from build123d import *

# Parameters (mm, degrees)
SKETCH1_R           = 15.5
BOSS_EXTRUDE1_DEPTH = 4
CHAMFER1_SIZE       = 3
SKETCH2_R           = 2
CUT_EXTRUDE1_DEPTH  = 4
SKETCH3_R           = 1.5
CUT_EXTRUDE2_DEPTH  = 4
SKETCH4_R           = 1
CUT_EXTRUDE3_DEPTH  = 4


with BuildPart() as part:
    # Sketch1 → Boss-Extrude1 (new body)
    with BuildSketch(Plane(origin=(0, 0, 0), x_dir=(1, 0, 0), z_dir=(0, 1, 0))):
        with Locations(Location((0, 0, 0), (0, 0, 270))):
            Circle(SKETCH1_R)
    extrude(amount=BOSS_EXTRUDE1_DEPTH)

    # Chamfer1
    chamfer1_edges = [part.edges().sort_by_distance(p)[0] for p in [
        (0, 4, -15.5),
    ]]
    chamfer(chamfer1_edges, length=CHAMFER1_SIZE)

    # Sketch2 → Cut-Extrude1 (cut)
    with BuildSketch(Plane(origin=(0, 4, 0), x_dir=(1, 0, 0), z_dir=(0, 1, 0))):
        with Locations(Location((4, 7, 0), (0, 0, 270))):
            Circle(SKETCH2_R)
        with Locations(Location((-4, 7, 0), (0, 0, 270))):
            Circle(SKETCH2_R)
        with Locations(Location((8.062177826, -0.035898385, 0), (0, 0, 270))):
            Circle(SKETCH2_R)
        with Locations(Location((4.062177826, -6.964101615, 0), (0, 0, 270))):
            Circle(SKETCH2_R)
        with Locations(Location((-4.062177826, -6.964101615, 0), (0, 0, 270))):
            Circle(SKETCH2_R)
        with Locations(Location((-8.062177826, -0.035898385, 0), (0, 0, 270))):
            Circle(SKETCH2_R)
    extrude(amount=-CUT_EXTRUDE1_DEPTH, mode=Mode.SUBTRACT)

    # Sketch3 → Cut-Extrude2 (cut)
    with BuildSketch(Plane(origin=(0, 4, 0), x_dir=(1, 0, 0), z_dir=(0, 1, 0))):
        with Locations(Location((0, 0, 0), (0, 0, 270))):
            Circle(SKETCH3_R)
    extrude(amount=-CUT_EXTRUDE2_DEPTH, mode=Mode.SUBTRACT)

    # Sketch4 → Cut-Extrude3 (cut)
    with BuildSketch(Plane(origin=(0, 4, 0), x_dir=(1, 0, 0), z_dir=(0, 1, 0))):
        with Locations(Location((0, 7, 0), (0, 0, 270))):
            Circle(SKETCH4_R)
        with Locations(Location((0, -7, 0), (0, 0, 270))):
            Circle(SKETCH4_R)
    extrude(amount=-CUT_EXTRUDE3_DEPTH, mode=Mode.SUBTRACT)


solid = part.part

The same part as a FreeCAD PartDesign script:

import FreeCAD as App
import Part
import Sketcher

V = App.Vector


def edges_at(feature, points):
    """Names of the edges that pass closest to the given points."""
    edges = feature.Shape.Edges
    near = lambda p: min(range(len(edges)), key=lambda i: edges[i].distToShape(Part.Vertex(*p))[0])
    return sorted({f"Edge{near(p) + 1}" for p in points})

doc = App.newDocument("Part")
params = doc.addObject("Spreadsheet::Sheet", "Params")
for row, (alias, value) in enumerate([
    ("sketch1_diameter", "31 mm"),
    ("pad1_length", "4 mm"),
    ("chamfer_size", "3 mm"),
    ("sketch2_diameter", "4 mm"),
    ("pocket1_length", "4 mm"),
    ("sketch3_diameter", "3 mm"),
    ("pocket2_length", "4 mm"),
    ("sketch4_diameter", "2 mm"),
    ("pocket3_length", "4 mm"),
], start=1):
    params.set(f"A{row}", alias)
    params.set(f"B{row}", "=" + value)
    params.setAlias(f"B{row}", alias)

body = doc.addObject("PartDesign::Body", "Body")

sketch1 = body.newObject("Sketcher::SketchObject", "Sketch")
sketch1.AttachmentSupport = (doc.getObject("XZ_Plane"), [""])
sketch1.MapMode = "FlatFace"
sketch1.addGeometry(Part.Circle(V(0, 0, 0), V(0, 0, 1), 15.5), False)
sketch1.addConstraint([
    Sketcher.Constraint("Coincident", 0, 3, -1, 1),
    Sketcher.Constraint("Diameter", 0, 31.0),
])
sketch1.setExpression("Constraints[1]", "Params.sketch1_diameter")
pad1 = body.newObject("PartDesign::Pad", "Pad")
pad1.Profile = sketch1
pad1.setExpression("Length", "Params.pad1_length")
pad1.Reversed = True
doc.recompute()

chamfer = body.newObject("PartDesign::Chamfer", "Chamfer")
chamfer.Base = (pad1, edges_at(pad1, [(0, 4, -15.5)]))
chamfer.setExpression("Size", "Params.chamfer_size")

sketch2 = body.newObject("Sketcher::SketchObject", "Sketch001")
sketch2.AttachmentSupport = (doc.getObject("XZ_Plane"), [""])
sketch2.MapMode = "FlatFace"
sketch2.AttachmentOffset = App.Placement(V(0, 0, -4), App.Rotation())
sketch2.addGeometry([
    Part.Circle(V(4, -7, 0), V(0, 0, 1), 2),
    Part.Circle(V(-4, -7, 0), V(0, 0, 1), 2),
    Part.Circle(V(8.062178, 0.035898, 0), V(0, 0, 1), 2),
    Part.Circle(V(4.062178, 6.964102, 0), V(0, 0, 1), 2),
    Part.Circle(V(-4.062178, 6.964102, 0), V(0, 0, 1), 2),
    Part.Circle(V(-8.062178, 0.035898, 0), V(0, 0, 1), 2),
], False)
sketch2.addConstraint([
    Sketcher.Constraint("Equal", 0, 1),
    Sketcher.Constraint("Equal", 1, 2),
    Sketcher.Constraint("Equal", 2, 3),
    Sketcher.Constraint("Equal", 3, 4),
    Sketcher.Constraint("Equal", 4, 5),
    Sketcher.Constraint("Symmetric", 0, 3, 1, 3, -2),
    Sketcher.Constraint("Symmetric", 3, 3, 4, 3, -2),
    Sketcher.Constraint("Symmetric", 2, 3, 5, 3, -2),
    Sketcher.Constraint("Diameter", 0, 4.0),
    Sketcher.Constraint("DistanceX", -1, 1, 0, 3, 4.0),
    Sketcher.Constraint("DistanceY", 0, 3, -1, 1, 7.0),
    Sketcher.Constraint("DistanceX", 3, 3, 2, 3, 4.0),
    Sketcher.Constraint("DistanceY", -1, 1, 2, 3, 0.035898),
    Sketcher.Constraint("DistanceY", -1, 1, 3, 3, 6.964102),
    Sketcher.Constraint("DistanceX", -1, 1, 2, 3, 8.062178),
])
sketch2.setExpression("Constraints[8]", "Params.sketch2_diameter")
pocket1 = body.newObject("PartDesign::Pocket", "Pocket")
pocket1.Profile = sketch2
pocket1.setExpression("Length", "Params.pocket1_length")
pocket1.Reversed = True

sketch3 = body.newObject("Sketcher::SketchObject", "Sketch002")
sketch3.AttachmentSupport = (doc.getObject("XZ_Plane"), [""])
sketch3.MapMode = "FlatFace"
sketch3.AttachmentOffset = App.Placement(V(0, 0, -4), App.Rotation())
sketch3.addGeometry(Part.Circle(V(0, 0, 0), V(0, 0, 1), 1.5), False)
sketch3.addConstraint([
    Sketcher.Constraint("Coincident", 0, 3, -1, 1),
    Sketcher.Constraint("Diameter", 0, 3.0),
])
sketch3.setExpression("Constraints[1]", "Params.sketch3_diameter")
pocket2 = body.newObject("PartDesign::Pocket", "Pocket001")
pocket2.Profile = sketch3
pocket2.setExpression("Length", "Params.pocket2_length")
pocket2.Reversed = True

sketch4 = body.newObject("Sketcher::SketchObject", "Sketch003")
sketch4.AttachmentSupport = (doc.getObject("XZ_Plane"), [""])
sketch4.MapMode = "FlatFace"
sketch4.AttachmentOffset = App.Placement(V(0, 0, -4), App.Rotation())
sketch4.addGeometry([
    Part.Circle(V(0, -7, 0), V(0, 0, 1), 1),
    Part.Circle(V(0, 7, 0), V(0, 0, 1), 1),
], False)
sketch4.addConstraint([
    Sketcher.Constraint("Equal", 0, 1),
    Sketcher.Constraint("Symmetric", 0, 3, 1, 3, -1, 1),
    Sketcher.Constraint("PointOnObject", 0, 3, -2),
    Sketcher.Constraint("Diameter", 0, 2.0),
    Sketcher.Constraint("DistanceY", 0, 3, -1, 1, 7.0),
])
sketch4.setExpression("Constraints[3]", "Params.sketch4_diameter")
pocket3 = body.newObject("PartDesign::Pocket", "Pocket002")
pocket3.Profile = sketch4
pocket3.setExpression("Length", "Params.pocket3_length")
pocket3.Reversed = True

doc.recompute()
